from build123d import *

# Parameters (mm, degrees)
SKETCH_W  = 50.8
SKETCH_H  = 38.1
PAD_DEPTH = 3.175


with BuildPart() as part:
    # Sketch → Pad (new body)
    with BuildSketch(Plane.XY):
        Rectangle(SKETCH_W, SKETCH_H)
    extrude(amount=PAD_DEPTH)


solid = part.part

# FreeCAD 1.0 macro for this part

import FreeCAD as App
import Part
import Sketcher
Q = App.Units.Quantity

doc = App.newDocument("Part")
params = doc.addObject("Spreadsheet::Sheet", "Params")
for row, (alias, value) in enumerate([
    ("sketch1_width", "2 in"),
    ("sketch1_height", "1.5 in"),
    ("pad1_length", "0.125 in"),
], start=1):
    params.set(f"A{row}", alias)
    params.set(f"B{row}", "=" + value)
    params.setAlias(f"B{row}", alias)

body = doc.addObject("PartDesign::Body", "Body")

# Sketch on XY plane
sketch1 = doc.addObject("Sketcher::SketchObject", "Sketch")
body.addObject(sketch1)
sketch1.AttachmentSupport = (doc.XY_Plane, [""])
sketch1.MapMode = "FlatFace"
sketch1.addGeometry([
    Part.LineSegment(App.Vector(-25, 19, 0), App.Vector(-25, -19, 0)),
    Part.LineSegment(App.Vector(-25, -19, 0), App.Vector(25, -19, 0)),
    Part.LineSegment(App.Vector(25, -19, 0), App.Vector(25, 19, 0)),
    Part.LineSegment(App.Vector(25, 19, 0), App.Vector(-25, 19, 0)),
], False)
sketch1.addConstraint([
    Sketcher.Constraint("Coincident", 0, 2, 1, 1),
    Sketcher.Constraint("Coincident", 1, 2, 2, 1),
    Sketcher.Constraint("Coincident", 2, 2, 3, 1),
    Sketcher.Constraint("Coincident", 3, 2, 0, 1),
    Sketcher.Constraint("Vertical", 0),
    Sketcher.Constraint("Horizontal", 1),
    Sketcher.Constraint("Vertical", 2),
    Sketcher.Constraint("Horizontal", 3),
    Sketcher.Constraint("Symmetric", 0, 2, 2, 2, -1, 1),
    Sketcher.Constraint("DistanceX", 1, 1, 1, 2, Q("2 in")),
    Sketcher.Constraint("DistanceY", 0, 2, 0, 1, Q("1.5 in")),
])
sketch1.setExpression("Constraints[9]", "Params.sketch1_width")
sketch1.setExpression("Constraints[10]", "Params.sketch1_height")
pad1 = doc.addObject("PartDesign::Pad", "Pad")
body.addObject(pad1)
pad1.Profile = sketch1
pad1.setExpression("Length", "Params.pad1_length")

doc.recompute()
